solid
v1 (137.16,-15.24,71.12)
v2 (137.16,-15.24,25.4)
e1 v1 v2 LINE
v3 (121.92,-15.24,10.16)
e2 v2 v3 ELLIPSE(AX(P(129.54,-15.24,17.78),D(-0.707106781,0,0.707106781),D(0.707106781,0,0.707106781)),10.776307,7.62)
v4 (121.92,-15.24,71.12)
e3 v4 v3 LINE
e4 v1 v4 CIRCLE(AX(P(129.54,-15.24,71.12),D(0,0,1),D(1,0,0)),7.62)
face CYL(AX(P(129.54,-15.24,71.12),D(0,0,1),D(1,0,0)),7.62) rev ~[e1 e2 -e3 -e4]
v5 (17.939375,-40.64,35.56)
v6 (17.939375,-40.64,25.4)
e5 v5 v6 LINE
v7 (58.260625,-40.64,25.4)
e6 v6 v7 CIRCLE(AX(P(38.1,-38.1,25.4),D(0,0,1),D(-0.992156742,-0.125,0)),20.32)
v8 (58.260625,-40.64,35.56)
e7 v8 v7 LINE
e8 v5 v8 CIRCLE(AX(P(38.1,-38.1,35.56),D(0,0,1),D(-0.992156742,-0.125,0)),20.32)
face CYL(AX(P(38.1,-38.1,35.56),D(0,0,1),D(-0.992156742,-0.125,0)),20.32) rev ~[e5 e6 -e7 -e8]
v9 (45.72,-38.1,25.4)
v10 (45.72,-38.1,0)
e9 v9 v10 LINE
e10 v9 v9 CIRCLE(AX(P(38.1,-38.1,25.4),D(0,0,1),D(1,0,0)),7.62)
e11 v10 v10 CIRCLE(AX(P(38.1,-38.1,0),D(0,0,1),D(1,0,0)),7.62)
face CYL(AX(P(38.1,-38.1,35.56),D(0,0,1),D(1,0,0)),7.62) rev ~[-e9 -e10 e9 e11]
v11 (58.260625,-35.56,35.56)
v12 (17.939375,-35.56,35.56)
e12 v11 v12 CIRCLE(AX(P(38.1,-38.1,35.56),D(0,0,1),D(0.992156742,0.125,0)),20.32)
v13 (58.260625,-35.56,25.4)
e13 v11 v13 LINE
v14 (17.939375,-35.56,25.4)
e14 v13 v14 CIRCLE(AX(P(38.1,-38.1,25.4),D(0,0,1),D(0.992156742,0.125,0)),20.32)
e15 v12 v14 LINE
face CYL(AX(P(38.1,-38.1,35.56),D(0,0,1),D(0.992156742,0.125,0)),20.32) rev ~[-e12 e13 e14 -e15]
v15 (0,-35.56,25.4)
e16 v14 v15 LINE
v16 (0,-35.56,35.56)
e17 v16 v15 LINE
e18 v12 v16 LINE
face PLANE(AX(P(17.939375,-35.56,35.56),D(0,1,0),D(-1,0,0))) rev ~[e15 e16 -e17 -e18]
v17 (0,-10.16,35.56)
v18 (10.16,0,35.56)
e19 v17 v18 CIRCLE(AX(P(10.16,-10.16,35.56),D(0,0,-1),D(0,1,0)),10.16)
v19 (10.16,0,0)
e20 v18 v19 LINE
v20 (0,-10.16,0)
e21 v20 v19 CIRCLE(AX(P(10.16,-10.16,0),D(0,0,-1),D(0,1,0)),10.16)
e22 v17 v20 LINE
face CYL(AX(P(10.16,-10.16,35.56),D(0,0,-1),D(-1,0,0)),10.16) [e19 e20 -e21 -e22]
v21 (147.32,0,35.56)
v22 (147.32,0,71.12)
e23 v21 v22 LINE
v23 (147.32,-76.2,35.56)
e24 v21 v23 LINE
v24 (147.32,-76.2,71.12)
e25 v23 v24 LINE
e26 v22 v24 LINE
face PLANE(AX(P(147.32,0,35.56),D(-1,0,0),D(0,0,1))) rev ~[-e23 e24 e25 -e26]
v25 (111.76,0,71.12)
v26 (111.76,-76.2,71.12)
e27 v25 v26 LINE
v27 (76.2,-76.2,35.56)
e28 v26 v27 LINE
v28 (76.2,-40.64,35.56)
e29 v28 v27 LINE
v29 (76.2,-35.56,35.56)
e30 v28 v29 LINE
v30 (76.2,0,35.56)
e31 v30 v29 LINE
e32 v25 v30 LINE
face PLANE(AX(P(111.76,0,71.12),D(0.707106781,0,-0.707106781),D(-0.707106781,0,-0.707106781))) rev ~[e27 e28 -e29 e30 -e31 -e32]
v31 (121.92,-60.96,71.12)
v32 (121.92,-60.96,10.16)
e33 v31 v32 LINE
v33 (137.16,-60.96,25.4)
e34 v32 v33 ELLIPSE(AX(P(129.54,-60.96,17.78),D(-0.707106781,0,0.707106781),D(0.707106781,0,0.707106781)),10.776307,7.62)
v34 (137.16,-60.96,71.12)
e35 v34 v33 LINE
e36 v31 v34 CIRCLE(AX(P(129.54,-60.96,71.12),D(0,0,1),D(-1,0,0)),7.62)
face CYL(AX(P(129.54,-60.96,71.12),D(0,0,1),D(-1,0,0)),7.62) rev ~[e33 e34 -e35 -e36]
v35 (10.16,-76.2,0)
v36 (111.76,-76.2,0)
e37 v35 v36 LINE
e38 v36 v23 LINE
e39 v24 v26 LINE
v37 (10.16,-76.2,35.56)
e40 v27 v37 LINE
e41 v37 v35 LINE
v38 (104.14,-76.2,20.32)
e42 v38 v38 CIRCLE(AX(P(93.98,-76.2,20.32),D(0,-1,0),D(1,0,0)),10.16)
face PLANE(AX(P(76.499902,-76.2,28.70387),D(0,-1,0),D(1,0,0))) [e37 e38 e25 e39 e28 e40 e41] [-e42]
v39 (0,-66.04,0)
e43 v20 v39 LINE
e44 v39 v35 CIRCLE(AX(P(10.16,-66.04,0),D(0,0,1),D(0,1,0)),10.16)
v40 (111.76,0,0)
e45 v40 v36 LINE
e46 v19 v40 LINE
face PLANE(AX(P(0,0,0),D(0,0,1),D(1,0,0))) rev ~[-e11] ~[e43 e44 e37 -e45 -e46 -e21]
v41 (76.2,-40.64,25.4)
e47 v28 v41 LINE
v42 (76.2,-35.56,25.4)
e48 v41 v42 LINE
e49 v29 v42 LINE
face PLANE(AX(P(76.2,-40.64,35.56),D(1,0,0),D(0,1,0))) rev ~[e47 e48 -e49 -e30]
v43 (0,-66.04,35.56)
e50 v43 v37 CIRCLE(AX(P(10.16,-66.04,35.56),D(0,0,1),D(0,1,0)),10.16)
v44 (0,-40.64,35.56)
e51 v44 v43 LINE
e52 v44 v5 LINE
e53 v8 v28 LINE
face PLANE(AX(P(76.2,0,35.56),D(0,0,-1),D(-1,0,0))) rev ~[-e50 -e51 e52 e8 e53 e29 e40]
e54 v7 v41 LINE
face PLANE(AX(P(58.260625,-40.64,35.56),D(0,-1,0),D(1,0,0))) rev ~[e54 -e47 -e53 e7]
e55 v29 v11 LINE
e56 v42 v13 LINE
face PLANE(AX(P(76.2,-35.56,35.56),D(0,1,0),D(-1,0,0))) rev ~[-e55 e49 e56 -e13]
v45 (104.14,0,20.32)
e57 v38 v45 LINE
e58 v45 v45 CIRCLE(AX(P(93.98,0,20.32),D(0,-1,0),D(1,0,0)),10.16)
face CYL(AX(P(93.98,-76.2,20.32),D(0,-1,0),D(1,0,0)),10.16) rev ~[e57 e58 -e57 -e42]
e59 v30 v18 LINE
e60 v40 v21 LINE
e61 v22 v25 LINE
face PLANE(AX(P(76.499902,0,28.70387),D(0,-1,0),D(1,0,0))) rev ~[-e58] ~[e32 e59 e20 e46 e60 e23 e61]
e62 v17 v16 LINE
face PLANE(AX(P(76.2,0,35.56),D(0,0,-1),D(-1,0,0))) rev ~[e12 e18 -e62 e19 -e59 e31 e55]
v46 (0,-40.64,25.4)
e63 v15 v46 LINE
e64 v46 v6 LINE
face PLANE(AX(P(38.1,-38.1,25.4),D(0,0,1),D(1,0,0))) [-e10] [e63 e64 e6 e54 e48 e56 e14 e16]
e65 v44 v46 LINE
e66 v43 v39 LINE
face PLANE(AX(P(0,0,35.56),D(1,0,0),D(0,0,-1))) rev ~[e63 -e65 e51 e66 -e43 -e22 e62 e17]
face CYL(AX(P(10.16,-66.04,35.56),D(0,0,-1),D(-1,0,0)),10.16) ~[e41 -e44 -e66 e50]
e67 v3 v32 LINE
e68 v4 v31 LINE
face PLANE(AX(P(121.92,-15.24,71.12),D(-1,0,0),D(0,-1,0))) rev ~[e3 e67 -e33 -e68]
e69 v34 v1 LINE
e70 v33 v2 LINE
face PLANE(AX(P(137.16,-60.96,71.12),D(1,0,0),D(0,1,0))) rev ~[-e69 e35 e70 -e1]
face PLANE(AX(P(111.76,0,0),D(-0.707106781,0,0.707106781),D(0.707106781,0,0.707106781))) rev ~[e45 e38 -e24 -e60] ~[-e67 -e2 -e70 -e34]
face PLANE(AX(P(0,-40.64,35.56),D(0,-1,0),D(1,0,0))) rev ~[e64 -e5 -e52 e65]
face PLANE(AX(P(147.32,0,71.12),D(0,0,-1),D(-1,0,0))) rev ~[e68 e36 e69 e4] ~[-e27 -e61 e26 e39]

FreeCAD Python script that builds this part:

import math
import FreeCAD as App
import Part
import Sketcher
Q = App.Units.Quantity


def edges_at(feature, points):
    """Names of the edges that pass closest to the given points."""
    edges = feature.Shape.Edges
    near = lambda p: min(range(len(edges)), key=lambda i: edges[i].distToShape(Part.Vertex(*p))[0])
    return sorted({f"Edge{near(p) + 1}" for p in points})

doc = App.newDocument("Part")
body = doc.addObject("PartDesign::Body", "Body")

sketch1 = body.newObject("Sketcher::SketchObject", "Sketch")
sketch1.AttachmentSupport = (doc.getObject("XZ_Plane"), [""])
sketch1.MapMode = "FlatFace"
sketch1.addGeometry(Part.LineSegment(App.Vector(0, 36, 0), App.Vector(0, 0, 0)), False)
sketch1.addGeometry(Part.LineSegment(App.Vector(0, 0, 0), App.Vector(112, 0, 0)), False)
sketch1.addGeometry(Part.LineSegment(App.Vector(112, 0, 0), App.Vector(147, 36, 0)), False)
sketch1.addGeometry(Part.LineSegment(App.Vector(147, 36, 0), App.Vector(147, 71, 0)), False)
sketch1.addGeometry(Part.LineSegment(App.Vector(147, 71, 0), App.Vector(112, 71, 0)), False)
sketch1.addGeometry(Part.LineSegment(App.Vector(112, 71, 0), App.Vector(76, 36, 0)), False)
sketch1.addGeometry(Part.LineSegment(App.Vector(76, 36, 0), App.Vector(0, 36, 0)), False)
sketch1.addConstraint(Sketcher.Constraint("Coincident", 0, 2, 1, 1))
sketch1.addConstraint(Sketcher.Constraint("Coincident", 1, 2, 2, 1))
sketch1.addConstraint(Sketcher.Constraint("Coincident", 2, 2, 3, 1))
sketch1.addConstraint(Sketcher.Constraint("Coincident", 3, 2, 4, 1))
sketch1.addConstraint(Sketcher.Constraint("Coincident", 4, 2, 5, 1))
sketch1.addConstraint(Sketcher.Constraint("Coincident", 5, 2, 6, 1))
sketch1.addConstraint(Sketcher.Constraint("Coincident", 6, 2, 0, 1))
sketch1.addConstraint(Sketcher.Constraint("Vertical", 0))
sketch1.addConstraint(Sketcher.Constraint("Horizontal", 1))
sketch1.addConstraint(Sketcher.Constraint("Vertical", 3))
sketch1.addConstraint(Sketcher.Constraint("Horizontal", 4))
sketch1.addConstraint(Sketcher.Constraint("Horizontal", 6))
sketch1.addConstraint(Sketcher.Constraint("Coincident", 0, 2, -1, 1))
sketch1.addConstraint(Sketcher.Constraint("Parallel", 2, 5))
sketch1.addConstraint(Sketcher.Constraint("Horizontal", 2, 2, 5, 2))
sketch1.addConstraint(Sketcher.Constraint("Vertical", 1, 2, 4, 2))
sketch1.addConstraint(Sketcher.Constraint("Equal", 4, 0))
sketch1.addConstraint(Sketcher.Constraint("Equal", 0, 3))
sketch1.addConstraint(Sketcher.Constraint("DistanceX", 6, 2, 6, 1, Q("3 in")))
sketch1.addConstraint(Sketcher.Constraint("DistanceX", 1, 1, 1, 2, Q("4.4 in")))
pad1 = body.newObject("PartDesign::Pad", "Pad")
pad1.Profile = sketch1
pad1.Length = Q("3 in")

sketch2 = body.newObject("Sketcher::SketchObject", "Sketch001")
sketch2.AttachmentSupport = (doc.getObject("XZ_Plane"), [""])
sketch2.MapMode = "FlatFace"
sketch2.AttachmentOffset = App.Placement(App.Vector(0, 0, 3 * 25.4), App.Rotation())
sketch2.addGeometry(Part.Circle(App.Vector(94, 20, 0), App.Vector(0, 0, 1), 10), False)
sketch2.addConstraint(Sketcher.Constraint("Diameter", 0, Q("0.8 in")))
sketch2.addConstraint(Sketcher.Constraint("DistanceX", -1, 1, 0, 3, Q("3.7 in")))
sketch2.addConstraint(Sketcher.Constraint("DistanceY", -1, 1, 0, 3, Q("0.8 in")))
pocket1 = body.newObject("PartDesign::Pocket", "Pocket")
pocket1.Profile = sketch2
pocket1.Type = "ThroughAll"

sketch3 = body.newObject("Sketcher::SketchObject", "Sketch002")
sketch3.AttachmentSupport = (doc.getObject("XY_Plane"), [""])
sketch3.MapMode = "FlatFace"
sketch3.AttachmentOffset = App.Placement(App.Vector(0, 0, 1.4 * 25.4), App.Rotation())
sketch3.addGeometry(Part.Circle(App.Vector(38, -38, 0), App.Vector(0, 0, 1), 8), False)
sketch3.addConstraint(Sketcher.Constraint("Diameter", 0, Q("0.6 in")))
sketch3.addConstraint(Sketcher.Constraint("DistanceX", -1, 1, 0, 3, Q("1.5 in")))
sketch3.addConstraint(Sketcher.Constraint("DistanceY", 0, 3, -1, 1, Q("1.5 in")))
pocket2 = body.newObject("PartDesign::Pocket", "Pocket001")
pocket2.Profile = sketch3
pocket2.Type = "ThroughAll"

sketch4 = body.newObject("Sketcher::SketchObject", "Sketch003")
sketch4.AttachmentSupport = (doc.getObject("XY_Plane"), [""])
sketch4.MapMode = "FlatFace"
sketch4.AttachmentOffset = App.Placement(App.Vector(0, 0, 1.4 * 25.4), App.Rotation())
sketch4.addGeometry(Part.LineSegment(App.Vector(0, -41, 0), App.Vector(18, -41, 0)), False)
sketch4.addGeometry(Part.ArcOfCircle(Part.Circle(App.Vector(38, -38, 0), App.Vector(0, 0, 1), 20), math.radians(-173), math.radians(-7)), False)
sketch4.addGeometry(Part.LineSegment(App.Vector(58, -41, 0), App.Vector(76, -41, 0)), False)
sketch4.addGeometry(Part.LineSegment(App.Vector(76, -41, 0), App.Vector(76, -36, 0)), False)
sketch4.addGeometry(Part.LineSegment(App.Vector(76, -36, 0), App.Vector(58, -36, 0)), False)
sketch4.addGeometry(Part.ArcOfCircle(Part.Circle(App.Vector(38, -38, 0), App.Vector(0, 0, 1), 20), math.radians(7), math.radians(173)), False)
sketch4.addGeometry(Part.LineSegment(App.Vector(18, -36, 0), App.Vector(0, -36, 0)), False)
sketch4.addGeometry(Part.LineSegment(App.Vector(0, -36, 0), App.Vector(0, -41, 0)), False)
sketch4.addConstraint(Sketcher.Constraint("Coincident", 0, 2, 1, 1))
sketch4.addConstraint(Sketcher.Constraint("Coincident", 1, 2, 2, 1))
sketch4.addConstraint(Sketcher.Constraint("Coincident", 2, 2, 3, 1))
sketch4.addConstraint(Sketcher.Constraint("Coincident", 3, 2, 4, 1))
sketch4.addConstraint(Sketcher.Constraint("Coincident", 4, 2, 5, 1))
sketch4.addConstraint(Sketcher.Constraint("Coincident", 5, 2, 6, 1))
sketch4.addConstraint(Sketcher.Constraint("Coincident", 6, 2, 7, 1))
sketch4.addConstraint(Sketcher.Constraint("Coincident", 7, 2, 0, 1))
sketch4.addConstraint(Sketcher.Constraint("Horizontal", 0))
sketch4.addConstraint(Sketcher.Constraint("Horizontal", 2))
sketch4.addConstraint(Sketcher.Constraint("Vertical", 3))
sketch4.addConstraint(Sketcher.Constraint("Horizontal", 4))
sketch4.addConstraint(Sketcher.Constraint("Horizontal", 6))
sketch4.addConstraint(Sketcher.Constraint("Vertical", 7))
sketch4.addConstraint(Sketcher.Constraint("Coincident", 5, 3, 1, 3))
sketch4.addConstraint(Sketcher.Constraint("Equal", 1, 5))
sketch4.addConstraint(Sketcher.Constraint("PointOnObject", 6, 2, -2))
sketch4.addConstraint(Sketcher.Constraint("Horizontal", 0, 2, 1, 2))
sketch4.addConstraint(Sketcher.Constraint("Horizontal", 4, 2, 5, 2))
sketch4.addConstraint(Sketcher.Constraint("Vertical", 1, 2, 4, 2))
sketch4.addConstraint(Sketcher.Constraint("Equal", 0, 2))
sketch4.addConstraint(Sketcher.Constraint("Radius", 1, Q("0.8 in")))
sketch4.addConstraint(Sketcher.Constraint("DistanceY", 3, 1, 3, 2, Q("0.2 in")))
sketch4.addConstraint(Sketcher.Constraint("DistanceX", -1, 1, 2, 2, Q("3 in")))
sketch4.addConstraint(Sketcher.Constraint("DistanceY", 1, 3, -1, 1, Q("1.5 in")))
pocket3 = body.newObject("PartDesign::Pocket", "Pocket002")
pocket3.Profile = sketch4
pocket3.Length = Q("0.4 in")

sketch5 = body.newObject("Sketcher::SketchObject", "Sketch004")
sketch5.AttachmentSupport = (doc.getObject("XY_Plane"), [""])
sketch5.MapMode = "FlatFace"
sketch5.AttachmentOffset = App.Placement(App.Vector(0, 0, 2.8 * 25.4), App.Rotation())
sketch5.addGeometry(Part.ArcOfCircle(Part.Circle(App.Vector(130, -15, 0), App.Vector(0, 0, 1), 8), math.radians(0), math.radians(180)), False)
sketch5.addGeometry(Part.LineSegment(App.Vector(122, -15, 0), App.Vector(122, -61, 0)), False)
sketch5.addGeometry(Part.ArcOfCircle(Part.Circle(App.Vector(130, -61, 0), App.Vector(0, 0, 1), 8), math.radians(180), math.radians(360)), False)
sketch5.addGeometry(Part.LineSegment(App.Vector(137, -61, 0), App.Vector(137, -15, 0)), False)
sketch5.addConstraint(Sketcher.Constraint("Tangent", 0, 2, 1, 1))
sketch5.addConstraint(Sketcher.Constraint("Tangent", 1, 2, 2, 1))
sketch5.addConstraint(Sketcher.Constraint("Tangent", 2, 2, 3, 1))
sketch5.addConstraint(Sketcher.Constraint("Tangent", 3, 2, 0, 1))
sketch5.addConstraint(Sketcher.Constraint("Vertical", 1))
sketch5.addConstraint(Sketcher.Constraint("Vertical", 3))
sketch5.addConstraint(Sketcher.Constraint("Radius", 0, Q("0.3 in")))
sketch5.addConstraint(Sketcher.Constraint("DistanceY", 1, 2, 1, 1, Q("1.8 in")))
sketch5.addConstraint(Sketcher.Constraint("DistanceX", -1, 1, 0, 3, Q("5.1 in")))
sketch5.addConstraint(Sketcher.Constraint("DistanceY", 0, 3, -1, 1, Q("0.6 in")))
pocket4 = body.newObject("PartDesign::Pocket", "Pocket003")
pocket4.Profile = sketch5
pocket4.Type = "ThroughAll"
doc.recompute()

fillet = body.newObject("PartDesign::Fillet", "Fillet")
fillet.Base = (pocket4, edges_at(pocket4, [(0, -76.2, 17.78), (0, 0, 17.78)]))
fillet.Radius = Q("0.4 in")

doc.recompute()
